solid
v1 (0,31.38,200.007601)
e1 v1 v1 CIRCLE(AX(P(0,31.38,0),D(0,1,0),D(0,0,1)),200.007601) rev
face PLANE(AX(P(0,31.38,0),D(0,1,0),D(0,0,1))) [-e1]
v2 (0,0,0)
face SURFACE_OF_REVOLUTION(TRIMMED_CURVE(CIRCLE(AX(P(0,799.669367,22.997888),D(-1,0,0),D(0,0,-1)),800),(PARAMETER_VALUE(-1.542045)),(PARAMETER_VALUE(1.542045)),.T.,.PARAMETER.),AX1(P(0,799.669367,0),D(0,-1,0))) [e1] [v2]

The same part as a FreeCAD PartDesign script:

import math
import FreeCAD as App
import Part
import Sketcher

V = App.Vector
Q = App.Units.Quantity

doc = App.newDocument("Part")
body = doc.addObject("PartDesign::Body", "Body")

# Sketch on XY plane
sketch1 = body.newObject("Sketcher::SketchObject", "Sketch")
sketch1.AttachmentSupport = (doc.getObject("XY_Plane"), [""])
sketch1.MapMode = "FlatFace"
sketch1.addGeometry([
    Part.LineSegment(V(375, 770, 0), V(0, 770, 0)),  # 0
    Part.LineSegment(V(0, 770, 0), V(0, 0, 0)),  # 1
    Part.ArcOfCircle(Part.Circle(V(-22.997888, 799.669367, 0), V(0, 0, 1), 800), math.radians(-88.352671), math.radians(-65.795331)),  # 2
    Part.ArcOfCircle(Part.Circle(V(268.571429, 170, 0), V(0, 0, 1), 106.428571), math.radians(-69.98404), math.radians(0)),  # 3
    Part.LineSegment(V(375, 170, 0), V(375, 770, 0)),  # 4
], False)
sketch1.addConstraint([
    Sketcher.Constraint("Coincident", 0, 2, 1, 1),
    Sketcher.Constraint("Coincident", 1, 2, 2, 1),
    Sketcher.Constraint("Coincident", 2, 2, 3, 1),
    Sketcher.Constraint("Tangent", 3, 2, 4, 1),
    Sketcher.Constraint("Coincident", 4, 2, 0, 1),
    Sketcher.Constraint("Horizontal", 0),
    Sketcher.Constraint("Vertical", 1),
    Sketcher.Constraint("Vertical", 4),
    Sketcher.Constraint("Coincident", 1, 2, -1, 1),
    Sketcher.Constraint("Radius", 2, Q("800 mm")),
    Sketcher.Constraint("DistanceX", 0, 2, 0, 1, Q("375 mm")),
    Sketcher.Constraint("DistanceY", 1, 2, 1, 1, Q("770 mm")),
    Sketcher.Constraint("DistanceY", 4, 1, 4, 2, Q("600 mm")),
    Sketcher.Constraint("DistanceX", -1, 1, 2, 2, Q("305 mm")),
    Sketcher.Constraint("Radius", 3, Q("106.428571 mm")),
])
revolution = body.newObject("PartDesign::Revolution", "Revolution")
revolution.Profile = sketch1
revolution.ReferenceAxis = (sketch1, ["V_Axis"])
revolution.Angle = 360

# Sketch on XZ plane
sketch2 = body.newObject("Sketcher::SketchObject", "Sketch001")
sketch2.AttachmentSupport = (doc.getObject("XZ_Plane"), [""])
sketch2.MapMode = "FlatFace"
sketch2.AttachmentOffset = App.Placement(V(0, 0, -31.38), App.Rotation())
sketch2.addGeometry(Part.Circle(V(0, 0, 0), V(0, 0, 1), 672.124238), False)
sketch2.addConstraint([
    Sketcher.Constraint("Coincident", 0, 3, -1, 1),
    Sketcher.Constraint("Diameter", 0, Q("1344.248477 mm")),
])
pocket1 = body.newObject("PartDesign::Pocket", "Pocket")
pocket1.Profile = sketch2
pocket1.Type = "ThroughAll"

doc.recompute()
